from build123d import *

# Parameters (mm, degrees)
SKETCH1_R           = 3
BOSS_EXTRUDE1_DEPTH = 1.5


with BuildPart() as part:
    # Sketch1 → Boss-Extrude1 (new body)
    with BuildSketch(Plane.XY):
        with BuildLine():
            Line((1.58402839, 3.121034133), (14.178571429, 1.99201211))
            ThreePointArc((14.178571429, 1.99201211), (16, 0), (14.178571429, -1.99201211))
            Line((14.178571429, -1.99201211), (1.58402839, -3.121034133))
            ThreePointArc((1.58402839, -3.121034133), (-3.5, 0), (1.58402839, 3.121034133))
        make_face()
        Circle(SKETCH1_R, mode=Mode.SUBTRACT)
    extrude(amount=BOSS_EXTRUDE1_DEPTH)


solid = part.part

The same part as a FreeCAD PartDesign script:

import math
import FreeCAD as App
import Part
import Sketcher
from FreeCAD import Vector

doc = App.newDocument("Part")
params = doc.addObject("Spreadsheet::Sheet", "Params")
for row, (alias, value) in enumerate([
    ("sketch1_diameter", "6 mm"),
    ("sketch1_radius", "2 mm"),
    ("sketch1_radius2", "3.5 mm"),
    ("pad1_length", "1.5 mm"),
], start=1):
    params.set(f"A{row}", alias)
    params.set(f"B{row}", "=" + value)
    params.setAlias(f"B{row}", alias)

body = doc.addObject("PartDesign::Body", "Body")

sketch1 = doc.addObject("Sketcher::SketchObject", "Sketch")
body.addObject(sketch1)
sketch1.AttachmentSupport = (doc.XY_Plane, [""])
sketch1.MapMode = "FlatFace"
sketch1.addGeometry([
    Part.LineSegment(Vector(14.2, 2, 0), Vector(1.6, 3.1, 0)),
    Part.ArcOfCircle(Part.Circle(Vector(0, 0, 0), Vector(0, 0, 1), 3.5), math.radians(63), math.radians(297)),
    Part.LineSegment(Vector(1.6, -3.1, 0), Vector(14.2, -2, 0)),
    Part.ArcOfCircle(Part.Circle(Vector(14, 0, 0), Vector(0, 0, 1), 2), math.radians(-85), math.radians(85)),
    Part.Circle(Vector(0, 0, 0), Vector(0, 0, 1), 3),
], False)
sketch1.addConstraint([
    Sketcher.Constraint("Coincident", 0, 2, 1, 1),
    Sketcher.Constraint("Coincident", 1, 2, 2, 1),
    Sketcher.Constraint("Tangent", 2, 2, 3, 1),
    Sketcher.Constraint("Tangent", 3, 2, 0, 1),
    Sketcher.Constraint("Coincident", 1, 3, -1, 1),
    Sketcher.Constraint("Coincident", 4, 3, -1, 1),
    Sketcher.Constraint("Symmetric", 2, 2, 3, 2, -1),
    Sketcher.Constraint("Diameter", 4, 6.0),
    Sketcher.Constraint("Radius", 3, 2.0),
    Sketcher.Constraint("Radius", 1, 3.5),
    Sketcher.Constraint("DistanceX", -1, 1, 3, 3, 14.0),
    Sketcher.Constraint("DistanceX", -1, 1, 0, 2, 1.584028),
])
sketch1.setExpression("Constraints[7]", "Params.sketch1_diameter")
sketch1.setExpression("Constraints[8]", "Params.sketch1_radius")
sketch1.setExpression("Constraints[9]", "Params.sketch1_radius2")
pad1 = doc.addObject("PartDesign::Pad", "Pad")
body.addObject(pad1)
pad1.Profile = sketch1
pad1.setExpression("Length", "Params.pad1_length")

doc.recompute()
